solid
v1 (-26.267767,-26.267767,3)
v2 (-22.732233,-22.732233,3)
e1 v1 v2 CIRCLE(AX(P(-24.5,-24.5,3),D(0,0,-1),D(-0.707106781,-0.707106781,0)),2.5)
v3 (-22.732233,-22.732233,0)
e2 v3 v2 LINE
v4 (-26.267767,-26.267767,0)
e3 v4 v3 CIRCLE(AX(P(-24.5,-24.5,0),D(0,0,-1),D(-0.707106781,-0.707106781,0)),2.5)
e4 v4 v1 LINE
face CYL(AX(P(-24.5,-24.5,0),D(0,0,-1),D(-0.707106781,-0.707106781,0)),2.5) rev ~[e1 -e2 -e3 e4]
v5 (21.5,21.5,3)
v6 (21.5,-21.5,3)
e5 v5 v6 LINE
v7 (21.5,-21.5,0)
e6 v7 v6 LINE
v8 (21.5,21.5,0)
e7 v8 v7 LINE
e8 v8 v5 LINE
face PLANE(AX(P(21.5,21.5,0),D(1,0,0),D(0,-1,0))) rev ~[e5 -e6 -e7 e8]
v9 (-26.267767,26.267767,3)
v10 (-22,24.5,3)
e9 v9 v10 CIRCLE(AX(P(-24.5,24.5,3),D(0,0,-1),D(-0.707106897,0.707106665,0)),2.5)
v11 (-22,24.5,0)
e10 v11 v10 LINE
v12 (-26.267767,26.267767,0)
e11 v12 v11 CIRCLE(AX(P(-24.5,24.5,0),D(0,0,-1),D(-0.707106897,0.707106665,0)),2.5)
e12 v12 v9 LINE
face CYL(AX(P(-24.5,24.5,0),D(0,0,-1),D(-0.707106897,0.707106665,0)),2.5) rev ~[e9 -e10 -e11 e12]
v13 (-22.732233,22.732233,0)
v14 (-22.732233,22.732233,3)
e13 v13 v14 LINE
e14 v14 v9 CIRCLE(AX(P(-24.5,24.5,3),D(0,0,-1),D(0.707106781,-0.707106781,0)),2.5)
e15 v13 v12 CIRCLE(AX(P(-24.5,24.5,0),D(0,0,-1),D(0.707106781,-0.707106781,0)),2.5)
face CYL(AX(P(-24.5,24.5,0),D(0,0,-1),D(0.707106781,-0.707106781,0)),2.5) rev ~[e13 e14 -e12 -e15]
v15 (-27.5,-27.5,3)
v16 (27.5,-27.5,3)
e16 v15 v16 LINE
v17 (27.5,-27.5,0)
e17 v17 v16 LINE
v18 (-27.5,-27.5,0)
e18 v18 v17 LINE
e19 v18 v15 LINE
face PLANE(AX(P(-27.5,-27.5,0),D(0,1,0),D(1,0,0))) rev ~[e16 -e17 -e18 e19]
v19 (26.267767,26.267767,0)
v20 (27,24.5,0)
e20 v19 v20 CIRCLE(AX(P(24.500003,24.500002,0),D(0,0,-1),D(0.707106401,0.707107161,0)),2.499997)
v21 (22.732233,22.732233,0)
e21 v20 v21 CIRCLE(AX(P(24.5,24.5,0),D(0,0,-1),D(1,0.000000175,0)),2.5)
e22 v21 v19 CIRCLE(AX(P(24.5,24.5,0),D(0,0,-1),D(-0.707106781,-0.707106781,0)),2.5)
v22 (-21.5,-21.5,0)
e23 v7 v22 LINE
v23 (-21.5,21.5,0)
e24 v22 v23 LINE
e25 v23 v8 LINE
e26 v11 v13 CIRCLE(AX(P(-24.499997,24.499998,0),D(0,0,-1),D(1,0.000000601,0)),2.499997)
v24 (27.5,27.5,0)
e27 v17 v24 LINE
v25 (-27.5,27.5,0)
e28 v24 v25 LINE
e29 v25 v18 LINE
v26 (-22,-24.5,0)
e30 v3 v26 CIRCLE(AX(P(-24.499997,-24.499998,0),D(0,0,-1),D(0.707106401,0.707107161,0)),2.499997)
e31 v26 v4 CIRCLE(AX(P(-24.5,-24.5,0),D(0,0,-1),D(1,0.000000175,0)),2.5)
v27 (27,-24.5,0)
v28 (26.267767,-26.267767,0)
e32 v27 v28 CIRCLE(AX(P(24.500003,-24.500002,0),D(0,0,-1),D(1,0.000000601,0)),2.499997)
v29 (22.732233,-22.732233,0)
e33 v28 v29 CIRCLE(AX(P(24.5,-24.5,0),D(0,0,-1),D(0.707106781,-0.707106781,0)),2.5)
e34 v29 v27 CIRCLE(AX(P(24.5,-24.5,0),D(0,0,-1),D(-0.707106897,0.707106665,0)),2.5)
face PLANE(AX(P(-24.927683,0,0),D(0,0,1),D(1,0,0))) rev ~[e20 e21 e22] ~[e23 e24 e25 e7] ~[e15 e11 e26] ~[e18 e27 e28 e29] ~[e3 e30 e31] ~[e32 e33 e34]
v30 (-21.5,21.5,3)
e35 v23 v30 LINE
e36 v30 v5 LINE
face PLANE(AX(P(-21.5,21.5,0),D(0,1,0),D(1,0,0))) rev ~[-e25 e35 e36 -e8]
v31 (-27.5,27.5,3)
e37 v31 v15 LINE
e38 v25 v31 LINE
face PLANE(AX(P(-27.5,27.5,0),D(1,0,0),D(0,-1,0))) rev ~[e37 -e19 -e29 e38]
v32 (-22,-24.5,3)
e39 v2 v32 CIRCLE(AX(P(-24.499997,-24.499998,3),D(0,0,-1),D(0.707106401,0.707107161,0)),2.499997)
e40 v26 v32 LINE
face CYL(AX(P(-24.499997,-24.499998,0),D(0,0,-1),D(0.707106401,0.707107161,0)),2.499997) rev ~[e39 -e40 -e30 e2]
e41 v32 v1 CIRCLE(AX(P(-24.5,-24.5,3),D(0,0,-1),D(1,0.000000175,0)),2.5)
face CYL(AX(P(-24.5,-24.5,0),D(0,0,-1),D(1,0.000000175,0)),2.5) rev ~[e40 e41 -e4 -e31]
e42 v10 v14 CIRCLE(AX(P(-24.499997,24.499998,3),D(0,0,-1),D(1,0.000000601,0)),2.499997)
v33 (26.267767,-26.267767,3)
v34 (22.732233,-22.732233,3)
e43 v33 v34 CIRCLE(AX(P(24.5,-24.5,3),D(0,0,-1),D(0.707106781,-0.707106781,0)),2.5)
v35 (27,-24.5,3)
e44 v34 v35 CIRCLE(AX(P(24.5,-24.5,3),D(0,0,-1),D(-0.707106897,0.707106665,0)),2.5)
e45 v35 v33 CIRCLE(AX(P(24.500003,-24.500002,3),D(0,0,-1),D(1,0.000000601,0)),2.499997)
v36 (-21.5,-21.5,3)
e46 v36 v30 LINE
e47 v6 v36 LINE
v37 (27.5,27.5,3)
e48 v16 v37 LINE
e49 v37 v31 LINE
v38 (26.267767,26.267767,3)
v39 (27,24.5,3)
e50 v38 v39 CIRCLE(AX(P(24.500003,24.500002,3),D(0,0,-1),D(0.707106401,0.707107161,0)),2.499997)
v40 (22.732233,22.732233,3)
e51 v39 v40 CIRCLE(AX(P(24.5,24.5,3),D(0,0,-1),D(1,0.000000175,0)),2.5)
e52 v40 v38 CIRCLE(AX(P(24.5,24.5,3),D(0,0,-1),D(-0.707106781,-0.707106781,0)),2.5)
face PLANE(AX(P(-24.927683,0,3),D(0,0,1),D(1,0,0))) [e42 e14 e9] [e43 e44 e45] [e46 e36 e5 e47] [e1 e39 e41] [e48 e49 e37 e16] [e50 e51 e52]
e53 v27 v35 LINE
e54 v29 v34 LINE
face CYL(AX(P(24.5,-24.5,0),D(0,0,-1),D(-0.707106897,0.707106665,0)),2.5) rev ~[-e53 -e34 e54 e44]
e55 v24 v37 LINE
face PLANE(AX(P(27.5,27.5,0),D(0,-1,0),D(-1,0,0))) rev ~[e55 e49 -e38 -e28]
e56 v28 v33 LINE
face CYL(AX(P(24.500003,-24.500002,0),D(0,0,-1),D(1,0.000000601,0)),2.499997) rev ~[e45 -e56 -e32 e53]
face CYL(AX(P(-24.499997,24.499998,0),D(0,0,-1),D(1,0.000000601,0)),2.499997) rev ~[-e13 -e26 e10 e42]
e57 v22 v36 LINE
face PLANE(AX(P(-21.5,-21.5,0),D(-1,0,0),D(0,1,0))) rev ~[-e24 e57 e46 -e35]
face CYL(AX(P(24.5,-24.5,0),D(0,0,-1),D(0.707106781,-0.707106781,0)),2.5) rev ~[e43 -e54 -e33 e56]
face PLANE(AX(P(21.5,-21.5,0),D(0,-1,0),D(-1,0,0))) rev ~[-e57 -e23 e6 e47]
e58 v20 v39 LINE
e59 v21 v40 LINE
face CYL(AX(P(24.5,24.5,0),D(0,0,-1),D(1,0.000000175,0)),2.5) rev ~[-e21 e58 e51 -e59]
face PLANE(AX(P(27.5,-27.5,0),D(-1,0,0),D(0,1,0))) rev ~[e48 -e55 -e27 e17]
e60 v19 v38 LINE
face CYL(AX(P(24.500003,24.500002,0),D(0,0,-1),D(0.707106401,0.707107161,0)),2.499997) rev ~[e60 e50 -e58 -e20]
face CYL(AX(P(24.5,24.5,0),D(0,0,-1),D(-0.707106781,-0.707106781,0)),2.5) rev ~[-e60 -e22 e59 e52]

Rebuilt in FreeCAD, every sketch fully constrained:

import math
import FreeCAD as App
import Part
import Sketcher


def add_polygon(sketch, points):
    """Adds a closed chain of lines whose ends are joined by coincident constraints."""
    first, n = sketch.GeometryCount, len(points)
    for a, b in zip(points, points[1:] + points[:1]):
        sketch.addGeometry(Part.LineSegment(App.Vector(*a, 0), App.Vector(*b, 0)), False)
    for i in range(n):
        sketch.addConstraint(Sketcher.Constraint("Coincident", first + i, 2, first + (i + 1) % n, 1))

doc = App.newDocument("Part")
body = doc.addObject("PartDesign::Body", "Body")

# Sketch on XY plane
sketch1 = body.newObject("Sketcher::SketchObject", "Sketch")
sketch1.AttachmentSupport = (doc.getObject("XY_Plane"), [""])
sketch1.MapMode = "FlatFace"
add_polygon(sketch1, [(-27.5, 27.5), (-27.5, -27.5), (27.5, -27.5), (27.5, 27.5)])  # lines 0-3
sketch1.addGeometry(Part.ArcOfCircle(Part.Circle(App.Vector(24.5, 24.5, 0), App.Vector(0, 0, 1), 2.5), math.radians(0), math.radians(45)), False)  # 4
sketch1.addGeometry(Part.ArcOfCircle(Part.Circle(App.Vector(24.5, 24.5, 0), App.Vector(0, 0, 1), 2.5), math.radians(-135), math.radians(0)), False)  # 5
sketch1.addGeometry(Part.ArcOfCircle(Part.Circle(App.Vector(24.5, 24.5, 0), App.Vector(0, 0, 1), 2.5), math.radians(45), math.radians(225)), False)  # 6
add_polygon(sketch1, [(21.5, 21.5), (21.5, -21.5), (-21.5, -21.5), (-21.5, 21.5)])  # lines 7-10
sketch1.addGeometry(Part.ArcOfCircle(Part.Circle(App.Vector(-24.5, 24.5, 0), App.Vector(0, 0, 1), 2.5), math.radians(135), math.radians(315)), False)  # 11
sketch1.addGeometry(Part.ArcOfCircle(Part.Circle(App.Vector(-24.5, 24.5, 0), App.Vector(0, 0, 1), 2.5), math.radians(0), math.radians(135)), False)  # 12
sketch1.addGeometry(Part.ArcOfCircle(Part.Circle(App.Vector(-24.5, 24.5, 0), App.Vector(0, 0, 1), 2.5), math.radians(-45), math.radians(0)), False)  # 13
sketch1.addGeometry(Part.ArcOfCircle(Part.Circle(App.Vector(24.5, -24.5, 0), App.Vector(0, 0, 1), 2.5), math.radians(135), math.radians(315)), False)  # 14
sketch1.addGeometry(Part.ArcOfCircle(Part.Circle(App.Vector(24.5, -24.5, 0), App.Vector(0, 0, 1), 2.5), math.radians(0), math.radians(135)), False)  # 15
sketch1.addGeometry(Part.ArcOfCircle(Part.Circle(App.Vector(24.5, -24.5, 0), App.Vector(0, 0, 1), 2.5), math.radians(-45), math.radians(0)), False)  # 16
sketch1.addGeometry(Part.ArcOfCircle(Part.Circle(App.Vector(-24.5, -24.5, 0), App.Vector(0, 0, 1), 2.5), math.radians(45), math.radians(225)), False)  # 17
sketch1.addGeometry(Part.ArcOfCircle(Part.Circle(App.Vector(-24.5, -24.5, 0), App.Vector(0, 0, 1), 2.5), math.radians(0), math.radians(45)), False)  # 18
sketch1.addGeometry(Part.ArcOfCircle(Part.Circle(App.Vector(-24.5, -24.5, 0), App.Vector(0, 0, 1), 2.5), math.radians(-135), math.radians(0)), False)  # 19
sketch1.addConstraint([
    Sketcher.Constraint("Tangent", 4, 1, 5, 2),
    Sketcher.Constraint("Tangent", 5, 1, 6, 2),
    Sketcher.Constraint("Tangent", 6, 1, 4, 2),
    Sketcher.Constraint("Tangent", 11, 1, 12, 2),
    Sketcher.Constraint("Tangent", 12, 1, 13, 2),
    Sketcher.Constraint("Tangent", 13, 1, 11, 2),
    Sketcher.Constraint("Tangent", 14, 1, 15, 2),
    Sketcher.Constraint("Tangent", 15, 1, 16, 2),
    Sketcher.Constraint("Tangent", 16, 1, 14, 2),
    Sketcher.Constraint("Tangent", 17, 1, 18, 2),
    Sketcher.Constraint("Tangent", 18, 1, 19, 2),
    Sketcher.Constraint("Tangent", 19, 1, 17, 2),
    Sketcher.Constraint("Vertical", 0),
    Sketcher.Constraint("Horizontal", 1),
    Sketcher.Constraint("Vertical", 2),
    Sketcher.Constraint("Horizontal", 3),
    Sketcher.Constraint("Vertical", 7),
    Sketcher.Constraint("Horizontal", 8),
    Sketcher.Constraint("Vertical", 9),
    Sketcher.Constraint("Horizontal", 10),
    Sketcher.Constraint("Equal", 6, 11),
    Sketcher.Constraint("Equal", 12, 14),
    Sketcher.Constraint("Equal", 15, 17),
    Sketcher.Constraint("Symmetric", 11, 3, 14, 3, -1, 1),
    Sketcher.Constraint("Symmetric", 4, 3, 17, 3, -1, 1),
    Sketcher.Constraint("Symmetric", 0, 2, 2, 2, -1, 1),
    Sketcher.Constraint("Symmetric", 7, 2, 9, 2, -1, 1),
    Sketcher.Constraint("Symmetric", 4, 3, 11, 3, -2),
    Sketcher.Constraint("Horizontal", 13, 3, 4, 1),
    Sketcher.Constraint("Horizontal", 6, 1, 11, 1),
    Sketcher.Constraint("Horizontal", 4, 1, 12, 1),
    Sketcher.Constraint("Horizontal", 5, 1, 13, 1),
    Sketcher.Constraint("Horizontal", 19, 3, 15, 1),
    Sketcher.Constraint("Horizontal", 14, 1, 17, 1),
    Sketcher.Constraint("Horizontal", 15, 1, 18, 1),
    Sketcher.Constraint("Horizontal", 16, 1, 19, 1),
    Sketcher.Constraint("Vertical", 5, 1, 14, 1),
    Sketcher.Constraint("Vertical", 6, 1, 16, 1),
    Sketcher.Constraint("Equal", 3, 0),
    Sketcher.Constraint("Equal", 10, 7),
    Sketcher.Constraint("Radius", 5, 2.5),
    Sketcher.Constraint("DistanceX", 1, 1, 1, 2, 55.0),
    Sketcher.Constraint("DistanceX", 8, 2, 8, 1, 43.0),
    Sketcher.Constraint("DistanceX", -1, 1, 4, 1, 27.0),
    Sketcher.Constraint("DistanceY", 14, 3, 5, 3, 49.0),
    Sketcher.Constraint("DistanceX", 5, 1, 4, 3, 1.76777),
    Sketcher.Constraint("DistanceX", 11, 1, 13, 3, 1.76777),
])
pad1 = body.newObject("PartDesign::Pad", "Pad")
pad1.Profile = sketch1
pad1.Length = 3

doc.recompute()
